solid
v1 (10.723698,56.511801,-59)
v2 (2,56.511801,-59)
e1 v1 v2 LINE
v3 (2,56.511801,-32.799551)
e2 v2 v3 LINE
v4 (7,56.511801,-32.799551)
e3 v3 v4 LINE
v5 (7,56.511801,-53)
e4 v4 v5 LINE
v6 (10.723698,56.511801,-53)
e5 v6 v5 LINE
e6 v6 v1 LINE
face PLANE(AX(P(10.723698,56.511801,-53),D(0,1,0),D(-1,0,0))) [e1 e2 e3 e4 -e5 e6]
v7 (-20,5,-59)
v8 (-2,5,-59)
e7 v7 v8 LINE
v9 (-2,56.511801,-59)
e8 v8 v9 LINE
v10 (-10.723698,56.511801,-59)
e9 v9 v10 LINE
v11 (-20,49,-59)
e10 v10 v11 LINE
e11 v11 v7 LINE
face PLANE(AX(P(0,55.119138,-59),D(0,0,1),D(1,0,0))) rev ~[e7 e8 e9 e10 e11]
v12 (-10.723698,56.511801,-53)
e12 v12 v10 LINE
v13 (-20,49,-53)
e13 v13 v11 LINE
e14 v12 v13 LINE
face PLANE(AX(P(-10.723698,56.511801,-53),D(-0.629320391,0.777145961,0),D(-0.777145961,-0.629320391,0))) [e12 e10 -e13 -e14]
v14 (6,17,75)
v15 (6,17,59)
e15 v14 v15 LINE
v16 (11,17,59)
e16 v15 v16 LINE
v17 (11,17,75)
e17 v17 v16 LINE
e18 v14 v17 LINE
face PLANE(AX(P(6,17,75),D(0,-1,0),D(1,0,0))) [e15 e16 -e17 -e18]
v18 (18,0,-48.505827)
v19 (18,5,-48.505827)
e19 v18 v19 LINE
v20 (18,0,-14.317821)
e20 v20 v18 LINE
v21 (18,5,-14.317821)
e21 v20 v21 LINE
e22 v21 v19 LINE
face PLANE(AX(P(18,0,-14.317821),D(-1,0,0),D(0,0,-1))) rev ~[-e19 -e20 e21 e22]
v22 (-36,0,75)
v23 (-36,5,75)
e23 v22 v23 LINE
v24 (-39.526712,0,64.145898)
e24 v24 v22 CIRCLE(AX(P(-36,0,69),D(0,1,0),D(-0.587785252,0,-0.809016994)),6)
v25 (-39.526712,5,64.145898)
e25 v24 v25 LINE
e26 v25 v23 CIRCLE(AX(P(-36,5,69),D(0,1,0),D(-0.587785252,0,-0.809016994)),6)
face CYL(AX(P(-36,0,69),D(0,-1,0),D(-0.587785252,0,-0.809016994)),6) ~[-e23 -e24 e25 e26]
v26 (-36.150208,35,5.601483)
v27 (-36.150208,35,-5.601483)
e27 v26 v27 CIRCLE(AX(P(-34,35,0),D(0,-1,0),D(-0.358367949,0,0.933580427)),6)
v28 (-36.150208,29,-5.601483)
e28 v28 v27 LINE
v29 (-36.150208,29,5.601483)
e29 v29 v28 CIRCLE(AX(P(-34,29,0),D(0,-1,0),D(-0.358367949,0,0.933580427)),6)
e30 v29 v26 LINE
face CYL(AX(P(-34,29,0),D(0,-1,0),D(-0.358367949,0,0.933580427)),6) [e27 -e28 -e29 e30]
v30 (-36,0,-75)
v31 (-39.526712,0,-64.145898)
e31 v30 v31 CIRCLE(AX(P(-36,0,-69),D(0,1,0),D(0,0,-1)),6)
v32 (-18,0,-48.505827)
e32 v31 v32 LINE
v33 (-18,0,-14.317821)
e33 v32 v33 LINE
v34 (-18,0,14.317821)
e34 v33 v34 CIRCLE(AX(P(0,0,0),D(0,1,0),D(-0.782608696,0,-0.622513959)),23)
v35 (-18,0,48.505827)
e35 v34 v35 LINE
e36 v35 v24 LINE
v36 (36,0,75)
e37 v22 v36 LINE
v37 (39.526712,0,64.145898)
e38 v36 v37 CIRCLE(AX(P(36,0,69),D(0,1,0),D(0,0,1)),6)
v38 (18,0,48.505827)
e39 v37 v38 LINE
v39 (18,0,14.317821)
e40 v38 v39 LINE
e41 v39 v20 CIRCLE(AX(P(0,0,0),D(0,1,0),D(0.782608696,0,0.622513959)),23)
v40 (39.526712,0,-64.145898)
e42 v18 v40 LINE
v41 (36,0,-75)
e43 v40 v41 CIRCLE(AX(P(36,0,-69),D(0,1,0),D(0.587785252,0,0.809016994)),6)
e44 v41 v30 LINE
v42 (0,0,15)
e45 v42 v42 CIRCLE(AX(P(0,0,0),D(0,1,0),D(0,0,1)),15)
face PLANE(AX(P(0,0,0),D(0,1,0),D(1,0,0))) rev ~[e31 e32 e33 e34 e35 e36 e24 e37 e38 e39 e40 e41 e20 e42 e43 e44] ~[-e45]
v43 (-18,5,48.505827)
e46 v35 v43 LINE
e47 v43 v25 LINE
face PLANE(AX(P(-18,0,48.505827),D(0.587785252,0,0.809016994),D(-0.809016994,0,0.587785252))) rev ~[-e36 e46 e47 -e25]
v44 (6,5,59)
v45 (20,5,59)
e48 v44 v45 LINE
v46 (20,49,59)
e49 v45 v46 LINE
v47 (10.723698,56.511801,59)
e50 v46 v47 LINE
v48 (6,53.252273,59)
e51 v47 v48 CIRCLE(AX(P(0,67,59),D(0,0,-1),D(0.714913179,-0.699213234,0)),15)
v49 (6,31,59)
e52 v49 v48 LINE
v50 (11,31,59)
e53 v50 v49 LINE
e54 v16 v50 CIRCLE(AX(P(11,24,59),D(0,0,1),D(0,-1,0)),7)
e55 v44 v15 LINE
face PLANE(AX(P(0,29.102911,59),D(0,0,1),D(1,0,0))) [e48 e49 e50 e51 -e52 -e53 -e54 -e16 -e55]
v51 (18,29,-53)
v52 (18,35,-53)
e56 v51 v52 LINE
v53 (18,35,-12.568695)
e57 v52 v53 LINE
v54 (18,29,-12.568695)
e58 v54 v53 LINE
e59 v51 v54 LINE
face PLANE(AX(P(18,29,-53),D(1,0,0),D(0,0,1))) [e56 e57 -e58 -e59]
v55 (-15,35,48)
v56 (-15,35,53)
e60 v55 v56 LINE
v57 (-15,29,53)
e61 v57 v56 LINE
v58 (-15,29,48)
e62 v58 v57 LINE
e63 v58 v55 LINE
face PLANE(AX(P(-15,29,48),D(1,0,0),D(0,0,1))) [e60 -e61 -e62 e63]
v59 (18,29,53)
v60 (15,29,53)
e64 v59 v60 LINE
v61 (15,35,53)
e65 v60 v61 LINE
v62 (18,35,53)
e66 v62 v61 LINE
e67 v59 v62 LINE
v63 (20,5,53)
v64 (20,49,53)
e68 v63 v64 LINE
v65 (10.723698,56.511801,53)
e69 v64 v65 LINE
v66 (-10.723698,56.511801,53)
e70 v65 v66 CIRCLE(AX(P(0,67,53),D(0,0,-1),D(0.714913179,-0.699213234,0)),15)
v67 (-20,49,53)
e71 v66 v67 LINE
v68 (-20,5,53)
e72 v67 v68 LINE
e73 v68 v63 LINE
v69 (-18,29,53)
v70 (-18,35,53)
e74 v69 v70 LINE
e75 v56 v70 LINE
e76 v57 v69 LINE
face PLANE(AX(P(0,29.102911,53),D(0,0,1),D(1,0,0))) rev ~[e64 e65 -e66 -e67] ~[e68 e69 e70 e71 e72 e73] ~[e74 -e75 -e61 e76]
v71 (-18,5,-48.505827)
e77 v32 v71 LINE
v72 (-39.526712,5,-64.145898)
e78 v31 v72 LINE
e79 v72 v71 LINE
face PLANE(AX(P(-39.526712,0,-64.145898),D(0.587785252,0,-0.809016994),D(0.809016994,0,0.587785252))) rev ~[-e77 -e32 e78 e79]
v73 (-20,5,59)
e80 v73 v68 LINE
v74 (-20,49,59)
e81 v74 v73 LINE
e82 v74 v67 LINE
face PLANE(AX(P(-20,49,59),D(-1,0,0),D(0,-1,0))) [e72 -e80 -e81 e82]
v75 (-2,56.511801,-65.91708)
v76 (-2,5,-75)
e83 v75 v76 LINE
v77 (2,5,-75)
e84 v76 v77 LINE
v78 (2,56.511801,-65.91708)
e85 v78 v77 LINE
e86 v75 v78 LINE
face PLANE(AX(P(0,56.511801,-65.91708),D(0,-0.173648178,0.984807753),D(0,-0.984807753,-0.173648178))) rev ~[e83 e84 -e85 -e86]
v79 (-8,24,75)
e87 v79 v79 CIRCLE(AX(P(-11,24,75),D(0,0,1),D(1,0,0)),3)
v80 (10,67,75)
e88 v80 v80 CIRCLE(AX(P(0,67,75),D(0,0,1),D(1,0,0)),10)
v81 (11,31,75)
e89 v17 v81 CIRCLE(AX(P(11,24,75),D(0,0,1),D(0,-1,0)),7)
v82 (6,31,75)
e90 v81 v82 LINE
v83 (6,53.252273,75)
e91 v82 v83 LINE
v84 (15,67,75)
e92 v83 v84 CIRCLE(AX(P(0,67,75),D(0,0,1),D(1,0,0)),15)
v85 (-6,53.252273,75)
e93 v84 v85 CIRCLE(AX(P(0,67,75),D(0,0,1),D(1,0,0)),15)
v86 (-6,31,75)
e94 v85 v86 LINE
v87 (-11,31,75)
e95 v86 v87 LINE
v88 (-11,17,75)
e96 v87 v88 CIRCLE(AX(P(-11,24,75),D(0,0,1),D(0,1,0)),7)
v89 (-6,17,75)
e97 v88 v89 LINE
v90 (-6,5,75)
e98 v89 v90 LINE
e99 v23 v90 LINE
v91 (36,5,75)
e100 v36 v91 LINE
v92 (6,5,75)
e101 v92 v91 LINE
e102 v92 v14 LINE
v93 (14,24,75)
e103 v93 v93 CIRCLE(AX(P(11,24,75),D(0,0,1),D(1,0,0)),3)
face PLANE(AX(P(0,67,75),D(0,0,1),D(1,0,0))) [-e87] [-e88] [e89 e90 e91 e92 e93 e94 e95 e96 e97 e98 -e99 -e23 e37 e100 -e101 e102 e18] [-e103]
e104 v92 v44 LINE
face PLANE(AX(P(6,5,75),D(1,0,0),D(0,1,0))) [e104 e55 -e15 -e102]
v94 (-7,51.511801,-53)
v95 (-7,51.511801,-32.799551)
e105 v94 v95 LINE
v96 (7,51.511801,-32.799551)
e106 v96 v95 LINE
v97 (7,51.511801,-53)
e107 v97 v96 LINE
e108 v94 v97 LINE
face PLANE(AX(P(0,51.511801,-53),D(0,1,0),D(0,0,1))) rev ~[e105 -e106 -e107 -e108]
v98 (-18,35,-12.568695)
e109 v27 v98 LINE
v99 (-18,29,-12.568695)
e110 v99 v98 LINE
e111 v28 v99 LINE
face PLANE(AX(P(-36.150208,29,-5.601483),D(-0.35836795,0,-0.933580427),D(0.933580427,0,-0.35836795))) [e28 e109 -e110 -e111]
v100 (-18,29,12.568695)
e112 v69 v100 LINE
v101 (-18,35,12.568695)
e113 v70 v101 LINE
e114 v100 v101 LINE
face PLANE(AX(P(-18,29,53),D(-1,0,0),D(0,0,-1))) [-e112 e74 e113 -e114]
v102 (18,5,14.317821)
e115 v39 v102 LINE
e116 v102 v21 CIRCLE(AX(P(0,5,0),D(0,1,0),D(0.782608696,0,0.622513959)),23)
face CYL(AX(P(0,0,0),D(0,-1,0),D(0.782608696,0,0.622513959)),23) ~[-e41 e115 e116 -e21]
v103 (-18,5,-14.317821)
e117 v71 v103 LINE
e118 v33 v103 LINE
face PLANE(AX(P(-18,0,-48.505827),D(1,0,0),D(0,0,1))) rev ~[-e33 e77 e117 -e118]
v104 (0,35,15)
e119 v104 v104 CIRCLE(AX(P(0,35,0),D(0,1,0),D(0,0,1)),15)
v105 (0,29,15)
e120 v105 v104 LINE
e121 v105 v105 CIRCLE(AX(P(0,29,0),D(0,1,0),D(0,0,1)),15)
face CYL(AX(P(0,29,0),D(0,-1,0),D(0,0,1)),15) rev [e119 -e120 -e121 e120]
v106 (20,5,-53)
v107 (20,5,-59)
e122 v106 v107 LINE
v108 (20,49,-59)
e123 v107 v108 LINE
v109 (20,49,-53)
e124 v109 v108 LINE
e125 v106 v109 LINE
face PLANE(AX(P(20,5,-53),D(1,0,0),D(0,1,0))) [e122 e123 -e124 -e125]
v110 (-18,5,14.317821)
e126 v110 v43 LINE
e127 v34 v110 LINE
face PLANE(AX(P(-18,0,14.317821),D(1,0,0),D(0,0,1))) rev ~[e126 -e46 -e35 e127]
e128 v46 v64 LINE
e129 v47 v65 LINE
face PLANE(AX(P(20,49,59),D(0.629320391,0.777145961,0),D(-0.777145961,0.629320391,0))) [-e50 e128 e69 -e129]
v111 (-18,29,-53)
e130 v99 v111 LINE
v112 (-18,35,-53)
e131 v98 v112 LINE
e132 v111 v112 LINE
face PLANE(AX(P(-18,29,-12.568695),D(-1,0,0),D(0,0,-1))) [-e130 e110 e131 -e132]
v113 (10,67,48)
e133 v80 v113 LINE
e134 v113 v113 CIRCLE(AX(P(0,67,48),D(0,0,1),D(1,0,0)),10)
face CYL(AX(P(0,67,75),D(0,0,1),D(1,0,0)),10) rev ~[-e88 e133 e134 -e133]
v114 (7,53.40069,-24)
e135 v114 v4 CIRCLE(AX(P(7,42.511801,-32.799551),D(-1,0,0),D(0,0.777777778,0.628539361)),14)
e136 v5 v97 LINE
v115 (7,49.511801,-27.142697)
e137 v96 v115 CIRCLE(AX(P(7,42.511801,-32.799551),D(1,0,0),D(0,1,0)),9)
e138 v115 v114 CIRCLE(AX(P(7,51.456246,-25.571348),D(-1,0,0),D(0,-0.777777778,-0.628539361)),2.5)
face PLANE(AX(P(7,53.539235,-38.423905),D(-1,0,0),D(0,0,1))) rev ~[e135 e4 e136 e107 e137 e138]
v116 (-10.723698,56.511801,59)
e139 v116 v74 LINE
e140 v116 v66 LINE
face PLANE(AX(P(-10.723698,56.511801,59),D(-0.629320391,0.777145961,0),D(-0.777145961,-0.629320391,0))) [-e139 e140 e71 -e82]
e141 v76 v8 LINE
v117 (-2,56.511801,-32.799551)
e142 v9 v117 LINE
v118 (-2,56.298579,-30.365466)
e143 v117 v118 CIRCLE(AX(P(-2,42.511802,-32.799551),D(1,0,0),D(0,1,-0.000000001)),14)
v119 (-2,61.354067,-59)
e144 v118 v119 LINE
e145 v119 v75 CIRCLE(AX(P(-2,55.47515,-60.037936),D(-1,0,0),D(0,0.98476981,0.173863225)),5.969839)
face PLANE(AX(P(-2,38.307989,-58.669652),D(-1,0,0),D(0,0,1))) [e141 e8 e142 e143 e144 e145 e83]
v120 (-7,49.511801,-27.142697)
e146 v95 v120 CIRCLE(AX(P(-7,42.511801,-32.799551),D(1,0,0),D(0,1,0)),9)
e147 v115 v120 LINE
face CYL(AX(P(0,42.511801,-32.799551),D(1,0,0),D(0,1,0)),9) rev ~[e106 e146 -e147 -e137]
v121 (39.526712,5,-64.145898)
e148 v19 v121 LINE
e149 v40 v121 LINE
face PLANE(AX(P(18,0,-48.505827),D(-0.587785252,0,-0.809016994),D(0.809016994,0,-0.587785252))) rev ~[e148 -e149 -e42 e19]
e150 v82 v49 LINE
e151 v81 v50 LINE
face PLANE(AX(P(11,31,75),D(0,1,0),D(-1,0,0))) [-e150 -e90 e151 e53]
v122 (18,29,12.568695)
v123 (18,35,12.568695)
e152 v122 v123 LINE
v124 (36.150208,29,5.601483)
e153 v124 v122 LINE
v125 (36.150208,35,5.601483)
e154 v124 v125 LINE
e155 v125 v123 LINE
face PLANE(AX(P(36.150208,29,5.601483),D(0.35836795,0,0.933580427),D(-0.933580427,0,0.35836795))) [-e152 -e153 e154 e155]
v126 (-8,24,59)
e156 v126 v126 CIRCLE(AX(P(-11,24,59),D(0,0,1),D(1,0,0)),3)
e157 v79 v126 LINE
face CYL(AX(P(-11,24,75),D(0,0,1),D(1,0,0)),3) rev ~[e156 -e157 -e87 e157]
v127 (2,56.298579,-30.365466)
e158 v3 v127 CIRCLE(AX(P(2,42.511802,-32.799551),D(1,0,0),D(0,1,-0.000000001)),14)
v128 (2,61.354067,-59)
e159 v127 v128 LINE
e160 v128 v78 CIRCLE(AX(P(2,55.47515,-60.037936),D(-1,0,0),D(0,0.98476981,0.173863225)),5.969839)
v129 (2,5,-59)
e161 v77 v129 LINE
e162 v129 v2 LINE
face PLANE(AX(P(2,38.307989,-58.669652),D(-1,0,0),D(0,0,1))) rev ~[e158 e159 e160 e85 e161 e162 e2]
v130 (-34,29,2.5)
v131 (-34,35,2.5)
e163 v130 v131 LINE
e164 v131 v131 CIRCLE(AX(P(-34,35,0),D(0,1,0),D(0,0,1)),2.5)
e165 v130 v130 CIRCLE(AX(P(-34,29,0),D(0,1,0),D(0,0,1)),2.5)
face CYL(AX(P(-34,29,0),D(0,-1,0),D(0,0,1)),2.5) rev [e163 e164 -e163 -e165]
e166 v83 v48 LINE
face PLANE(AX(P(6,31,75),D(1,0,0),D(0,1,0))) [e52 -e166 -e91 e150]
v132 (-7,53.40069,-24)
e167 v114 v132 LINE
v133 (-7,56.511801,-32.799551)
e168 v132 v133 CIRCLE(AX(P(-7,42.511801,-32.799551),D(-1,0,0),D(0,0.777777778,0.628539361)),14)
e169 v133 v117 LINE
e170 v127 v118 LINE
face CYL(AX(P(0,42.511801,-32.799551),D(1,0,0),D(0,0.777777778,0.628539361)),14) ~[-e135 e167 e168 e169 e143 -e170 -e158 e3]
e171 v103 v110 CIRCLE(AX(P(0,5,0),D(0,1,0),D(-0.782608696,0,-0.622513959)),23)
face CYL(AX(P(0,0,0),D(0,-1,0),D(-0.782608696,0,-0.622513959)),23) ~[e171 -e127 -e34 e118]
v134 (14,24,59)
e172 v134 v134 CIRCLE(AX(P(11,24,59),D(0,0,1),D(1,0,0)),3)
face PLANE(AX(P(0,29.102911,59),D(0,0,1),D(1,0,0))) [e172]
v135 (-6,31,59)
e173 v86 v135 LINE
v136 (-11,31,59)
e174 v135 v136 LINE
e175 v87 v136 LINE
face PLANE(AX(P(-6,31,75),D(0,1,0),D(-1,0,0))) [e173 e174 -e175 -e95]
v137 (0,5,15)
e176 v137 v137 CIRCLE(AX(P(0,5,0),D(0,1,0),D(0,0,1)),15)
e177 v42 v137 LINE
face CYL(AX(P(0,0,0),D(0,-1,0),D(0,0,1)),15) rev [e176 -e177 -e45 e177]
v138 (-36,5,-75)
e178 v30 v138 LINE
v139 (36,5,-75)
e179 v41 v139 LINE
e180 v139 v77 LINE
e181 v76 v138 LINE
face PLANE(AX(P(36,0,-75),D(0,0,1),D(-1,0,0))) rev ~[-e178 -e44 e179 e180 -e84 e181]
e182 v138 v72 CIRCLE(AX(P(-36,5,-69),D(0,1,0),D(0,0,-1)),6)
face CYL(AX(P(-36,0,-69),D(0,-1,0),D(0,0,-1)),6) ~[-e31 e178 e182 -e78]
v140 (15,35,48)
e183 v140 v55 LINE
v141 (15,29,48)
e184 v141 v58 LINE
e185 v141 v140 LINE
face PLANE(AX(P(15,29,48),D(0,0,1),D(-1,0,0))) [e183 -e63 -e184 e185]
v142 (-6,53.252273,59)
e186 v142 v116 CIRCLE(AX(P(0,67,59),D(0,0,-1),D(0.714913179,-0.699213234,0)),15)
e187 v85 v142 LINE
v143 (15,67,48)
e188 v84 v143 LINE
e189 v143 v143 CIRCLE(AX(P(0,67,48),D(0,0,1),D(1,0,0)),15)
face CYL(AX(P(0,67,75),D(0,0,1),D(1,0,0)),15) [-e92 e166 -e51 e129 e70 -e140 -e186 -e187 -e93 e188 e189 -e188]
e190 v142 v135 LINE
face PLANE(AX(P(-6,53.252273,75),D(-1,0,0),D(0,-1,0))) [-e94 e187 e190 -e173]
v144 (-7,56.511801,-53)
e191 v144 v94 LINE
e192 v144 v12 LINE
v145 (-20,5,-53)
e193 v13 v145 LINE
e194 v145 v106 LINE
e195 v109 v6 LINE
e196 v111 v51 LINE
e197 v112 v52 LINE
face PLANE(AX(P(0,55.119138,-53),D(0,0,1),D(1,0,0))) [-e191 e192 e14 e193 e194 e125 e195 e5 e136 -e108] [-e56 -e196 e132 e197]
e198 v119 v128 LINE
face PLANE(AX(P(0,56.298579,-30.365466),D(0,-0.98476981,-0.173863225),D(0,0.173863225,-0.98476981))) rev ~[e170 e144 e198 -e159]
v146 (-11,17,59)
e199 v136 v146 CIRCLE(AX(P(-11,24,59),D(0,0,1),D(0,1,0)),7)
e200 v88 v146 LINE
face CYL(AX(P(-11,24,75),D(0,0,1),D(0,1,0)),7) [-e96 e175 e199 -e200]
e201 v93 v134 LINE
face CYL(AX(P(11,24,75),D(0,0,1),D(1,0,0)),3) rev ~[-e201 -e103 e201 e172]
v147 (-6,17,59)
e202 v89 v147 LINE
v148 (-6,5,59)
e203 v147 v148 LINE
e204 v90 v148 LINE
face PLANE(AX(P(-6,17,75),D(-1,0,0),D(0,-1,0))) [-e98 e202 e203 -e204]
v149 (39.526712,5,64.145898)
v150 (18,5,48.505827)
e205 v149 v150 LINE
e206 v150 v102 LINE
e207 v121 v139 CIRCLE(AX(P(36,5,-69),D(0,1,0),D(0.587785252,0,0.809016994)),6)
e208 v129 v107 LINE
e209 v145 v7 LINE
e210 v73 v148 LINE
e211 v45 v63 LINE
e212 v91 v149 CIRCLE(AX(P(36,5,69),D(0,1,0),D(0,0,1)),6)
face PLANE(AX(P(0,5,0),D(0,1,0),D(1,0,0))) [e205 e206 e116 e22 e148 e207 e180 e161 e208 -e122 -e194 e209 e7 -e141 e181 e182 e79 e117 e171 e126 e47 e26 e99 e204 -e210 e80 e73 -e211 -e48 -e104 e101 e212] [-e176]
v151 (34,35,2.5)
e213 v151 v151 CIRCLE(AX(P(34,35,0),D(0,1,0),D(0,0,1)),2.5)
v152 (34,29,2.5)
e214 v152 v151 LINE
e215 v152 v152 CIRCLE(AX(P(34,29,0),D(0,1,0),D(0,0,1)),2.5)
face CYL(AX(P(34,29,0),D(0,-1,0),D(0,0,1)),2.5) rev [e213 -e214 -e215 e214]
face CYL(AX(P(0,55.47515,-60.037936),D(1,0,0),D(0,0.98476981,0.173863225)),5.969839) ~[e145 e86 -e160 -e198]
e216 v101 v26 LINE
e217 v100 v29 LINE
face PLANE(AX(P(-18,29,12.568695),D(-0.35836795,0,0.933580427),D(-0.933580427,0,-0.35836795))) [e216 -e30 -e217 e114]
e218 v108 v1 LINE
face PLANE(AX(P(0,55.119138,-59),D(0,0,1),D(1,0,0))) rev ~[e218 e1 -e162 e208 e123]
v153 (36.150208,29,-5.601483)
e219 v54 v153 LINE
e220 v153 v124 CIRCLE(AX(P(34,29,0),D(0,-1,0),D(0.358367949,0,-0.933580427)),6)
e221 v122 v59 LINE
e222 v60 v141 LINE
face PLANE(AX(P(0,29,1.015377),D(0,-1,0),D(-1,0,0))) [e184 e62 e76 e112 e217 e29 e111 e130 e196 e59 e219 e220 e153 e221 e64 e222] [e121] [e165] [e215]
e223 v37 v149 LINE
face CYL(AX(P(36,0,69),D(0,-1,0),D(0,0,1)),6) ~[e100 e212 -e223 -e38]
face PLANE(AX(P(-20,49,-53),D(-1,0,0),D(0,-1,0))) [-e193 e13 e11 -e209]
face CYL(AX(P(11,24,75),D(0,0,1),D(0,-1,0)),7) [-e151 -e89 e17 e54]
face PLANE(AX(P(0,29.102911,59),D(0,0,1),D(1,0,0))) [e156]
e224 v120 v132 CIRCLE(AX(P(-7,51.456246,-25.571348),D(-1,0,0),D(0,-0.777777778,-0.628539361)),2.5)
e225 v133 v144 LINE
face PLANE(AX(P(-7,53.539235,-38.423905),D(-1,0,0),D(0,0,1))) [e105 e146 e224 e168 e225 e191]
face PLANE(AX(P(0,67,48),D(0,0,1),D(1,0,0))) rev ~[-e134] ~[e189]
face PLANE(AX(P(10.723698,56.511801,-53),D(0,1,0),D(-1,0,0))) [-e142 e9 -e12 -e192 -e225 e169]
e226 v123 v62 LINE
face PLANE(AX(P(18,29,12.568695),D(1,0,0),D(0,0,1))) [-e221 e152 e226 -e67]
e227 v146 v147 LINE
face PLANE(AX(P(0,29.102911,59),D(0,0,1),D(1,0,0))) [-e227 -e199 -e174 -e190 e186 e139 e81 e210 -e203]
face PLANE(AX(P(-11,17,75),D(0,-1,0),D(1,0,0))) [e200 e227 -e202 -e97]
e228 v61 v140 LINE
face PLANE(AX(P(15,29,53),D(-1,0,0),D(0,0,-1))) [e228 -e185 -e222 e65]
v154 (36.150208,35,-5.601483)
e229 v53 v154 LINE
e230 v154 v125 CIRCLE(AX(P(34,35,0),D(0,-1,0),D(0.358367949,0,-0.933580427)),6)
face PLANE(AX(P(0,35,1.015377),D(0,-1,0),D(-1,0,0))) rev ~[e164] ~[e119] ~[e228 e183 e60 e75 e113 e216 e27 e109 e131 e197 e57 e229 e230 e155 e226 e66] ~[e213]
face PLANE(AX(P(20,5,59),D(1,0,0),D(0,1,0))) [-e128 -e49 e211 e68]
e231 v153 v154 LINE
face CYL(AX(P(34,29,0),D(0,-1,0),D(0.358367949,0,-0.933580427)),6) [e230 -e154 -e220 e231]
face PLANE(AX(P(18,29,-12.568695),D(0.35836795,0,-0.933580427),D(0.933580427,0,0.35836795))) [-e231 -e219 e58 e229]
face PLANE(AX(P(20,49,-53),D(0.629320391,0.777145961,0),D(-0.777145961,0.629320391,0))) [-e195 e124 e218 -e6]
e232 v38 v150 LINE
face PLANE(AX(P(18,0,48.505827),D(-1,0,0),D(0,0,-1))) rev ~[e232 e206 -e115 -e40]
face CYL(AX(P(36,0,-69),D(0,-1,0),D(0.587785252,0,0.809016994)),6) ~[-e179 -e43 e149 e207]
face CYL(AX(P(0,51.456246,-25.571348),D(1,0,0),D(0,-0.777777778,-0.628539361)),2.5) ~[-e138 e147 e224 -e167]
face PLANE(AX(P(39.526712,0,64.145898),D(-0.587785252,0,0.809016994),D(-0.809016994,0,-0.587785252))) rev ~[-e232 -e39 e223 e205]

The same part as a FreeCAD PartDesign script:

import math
import FreeCAD as App
import Part
import Sketcher
Q = App.Units.Quantity

doc = App.newDocument("Part")
params = doc.addObject("Spreadsheet::Sheet", "Params")
for row, (alias, value) in enumerate([
    ("sketch1_diameter", "30 mm"),
    ("sketch1_radius", "23 mm"),
    ("sketch1_radius2", "6 mm"),
    ("sketch1_width", "72 mm"),
    ("pad1_length", "5 mm"),
    ("sketch2_diameter", "30 mm"),
    ("sketch2_diameter2", "20 mm"),
    ("pad2_length", "27 mm"),
    ("sketch3_diameter", "6 mm"),
    ("sketch3_radius", "7 mm"),
    ("sketch3_radius2", "15 mm"),
    ("sketch3_width", "5 mm"),
    ("sketch3_width2", "12 mm"),
    ("pad3_length", "16 mm"),
    ("sketch4_radius", "15 mm"),
    ("sketch4_width", "40 mm"),
    ("sketch4_height", "44 mm"),
    ("pad4_length", "6 mm"),
    ("linearpattern_pitch", "112 mm"),
    ("sketch5_radius", "15 mm"),
    ("pad5_length", "6 mm"),
    ("sketch6_diameter", "5 mm"),
    ("sketch6_diameter2", "30 mm"),
    ("sketch6_radius", "6 mm"),
    ("sketch6_width", "3 mm"),
    ("sketch6_width2", "30 mm"),
    ("pad6_length", "6 mm"),
    ("sketch7_radius", "14 mm"),
    ("sketch7_radius2", "9 mm"),
    ("pad7_length", "14 mm"),
    ("sketch8_radius", "14 mm"),
    ("sketch8_height", "16 mm"),
    ("pad8_length", "4 mm"),
], start=1):
    params.set(f"A{row}", alias)
    params.set(f"B{row}", "=" + value)
    params.setAlias(f"B{row}", alias)

body = doc.addObject("PartDesign::Body", "Body")

# Sketch on XZ plane
sketch1 = body.newObject("Sketcher::SketchObject", "Sketch")
sketch1.AttachmentSupport = (doc.getObject("XZ_Plane"), [""])
sketch1.MapMode = "FlatFace"
sketch1.addGeometry([
    Part.LineSegment(App.Vector(-18, -49, 0), App.Vector(-18, -14, 0)),  # 0
    Part.ArcOfCircle(Part.Circle(App.Vector(0, 0, 0), App.Vector(0, 0, 1), 23), math.radians(142), math.radians(218)),  # 1
    Part.LineSegment(App.Vector(-18, 14, 0), App.Vector(-18, 49, 0)),  # 2
    Part.LineSegment(App.Vector(-18, 49, 0), App.Vector(-40, 64, 0)),  # 3
    Part.ArcOfCircle(Part.Circle(App.Vector(-36, 69, 0), App.Vector(0, 0, 1), 6), math.radians(90), math.radians(234)),  # 4
    Part.LineSegment(App.Vector(-36, 75, 0), App.Vector(36, 75, 0)),  # 5
    Part.ArcOfCircle(Part.Circle(App.Vector(36, 69, 0), App.Vector(0, 0, 1), 6), math.radians(-54), math.radians(90)),  # 6
    Part.LineSegment(App.Vector(40, 64, 0), App.Vector(18, 49, 0)),  # 7
    Part.LineSegment(App.Vector(18, 49, 0), App.Vector(18, 14, 0)),  # 8
    Part.ArcOfCircle(Part.Circle(App.Vector(0, 0, 0), App.Vector(0, 0, 1), 23), math.radians(-38), math.radians(38)),  # 9
    Part.LineSegment(App.Vector(18, -14, 0), App.Vector(18, -49, 0)),  # 10
    Part.LineSegment(App.Vector(18, -49, 0), App.Vector(40, -64, 0)),  # 11
    Part.ArcOfCircle(Part.Circle(App.Vector(36, -69, 0), App.Vector(0, 0, 1), 6), math.radians(-90), math.radians(54)),  # 12
    Part.LineSegment(App.Vector(36, -75, 0), App.Vector(-36, -75, 0)),  # 13
    Part.ArcOfCircle(Part.Circle(App.Vector(-36, -69, 0), App.Vector(0, 0, 1), 6), math.radians(126), math.radians(270)),  # 14
    Part.LineSegment(App.Vector(-40, -64, 0), App.Vector(-18, -49, 0)),  # 15
    Part.Circle(App.Vector(0, 0, 0), App.Vector(0, 0, 1), 15),  # 16
], False)
sketch1.addConstraint([
    Sketcher.Constraint("Coincident", 0, 2, 1, 2),
    Sketcher.Constraint("Coincident", 1, 1, 2, 1),
    Sketcher.Constraint("Coincident", 2, 2, 3, 1),
    Sketcher.Constraint("Tangent", 3, 2, 4, 2),
    Sketcher.Constraint("Tangent", 4, 1, 5, 1),
    Sketcher.Constraint("Tangent", 5, 2, 6, 2),
    Sketcher.Constraint("Tangent", 6, 1, 7, 1),
    Sketcher.Constraint("Coincident", 7, 2, 8, 1),
    Sketcher.Constraint("Coincident", 8, 2, 9, 2),
    Sketcher.Constraint("Coincident", 9, 1, 10, 1),
    Sketcher.Constraint("Coincident", 10, 2, 11, 1),
    Sketcher.Constraint("Tangent", 11, 2, 12, 2),
    Sketcher.Constraint("Tangent", 12, 1, 13, 1),
    Sketcher.Constraint("Tangent", 13, 2, 14, 2),
    Sketcher.Constraint("Tangent", 14, 1, 15, 1),
    Sketcher.Constraint("Coincident", 15, 2, 0, 1),
    Sketcher.Constraint("Vertical", 0),
    Sketcher.Constraint("Vertical", 2),
    Sketcher.Constraint("Horizontal", 5),
    Sketcher.Constraint("Vertical", 8),
    Sketcher.Constraint("Vertical", 10),
    Sketcher.Constraint("Horizontal", 13),
    Sketcher.Constraint("Coincident", 1, 3, -1, 1),
    Sketcher.Constraint("Coincident", 9, 3, -1, 1),
    Sketcher.Constraint("Coincident", 16, 3, -1, 1),
    Sketcher.Constraint("Equal", 4, 6),
    Sketcher.Constraint("Equal", 1, 9),
    Sketcher.Constraint("Equal", 6, 12),
    Sketcher.Constraint("Equal", 12, 14),
    Sketcher.Constraint("Symmetric", 4, 3, 12, 3, -1, 1),
    Sketcher.Constraint("Symmetric", 2, 2, 10, 2, -1, 1),
    Sketcher.Constraint("Symmetric", 6, 1, 14, 1, -1, 1),
    Sketcher.Constraint("Symmetric", 3, 2, 6, 1, -2),
    Sketcher.Constraint("Horizontal", 2, 2, 7, 2),
    Sketcher.Constraint("Horizontal", 0, 2, 9, 1),
    Sketcher.Constraint("Diameter", 16, 30.0),
    Sketcher.Constraint("Radius", 1, 23.0),
    Sketcher.Constraint("Radius", 4, 6.0),
    Sketcher.Constraint("DistanceX", 5, 1, 5, 2, 72.0),
    Sketcher.Constraint("Angle", 3, Q("144 deg")),
    Sketcher.Constraint("DistanceY", -1, 1, 4, 3, 69.0),
    Sketcher.Constraint("DistanceX", 0, 2, -1, 1, 18.0),
])
sketch1.setExpression("Constraints[35]", "Params.sketch1_diameter")
sketch1.setExpression("Constraints[36]", "Params.sketch1_radius")
sketch1.setExpression("Constraints[37]", "Params.sketch1_radius2")
sketch1.setExpression("Constraints[38]", "Params.sketch1_width")
pad1 = body.newObject("PartDesign::Pad", "Pad")
pad1.Profile = sketch1
pad1.setExpression("Length", "Params.pad1_length")
pad1.Reversed = True
body2 = doc.addObject("PartDesign::Body", "Body001")

# Sketch on XY plane
sketch2 = body2.newObject("Sketcher::SketchObject", "Sketch001")
sketch2.AttachmentSupport = (doc.getObject("XY_Plane001"), [""])
sketch2.MapMode = "FlatFace"
sketch2.AttachmentOffset = App.Placement(App.Vector(0, 0, 75), App.Rotation())
sketch2.addGeometry([
    Part.Circle(App.Vector(0, 67, 0), App.Vector(0, 0, 1), 15),
    Part.Circle(App.Vector(0, 67, 0), App.Vector(0, 0, 1), 10),
], False)
sketch2.addConstraint([
    Sketcher.Constraint("Coincident", 1, 3, 0, 3),
    Sketcher.Constraint("PointOnObject", 0, 3, -2),
    Sketcher.Constraint("Diameter", 0, 30.0),
    Sketcher.Constraint("Diameter", 1, 20.0),
    Sketcher.Constraint("DistanceY", -1, 1, 0, 3, 67.0),
])
sketch2.setExpression("Constraints[2]", "Params.sketch2_diameter")
sketch2.setExpression("Constraints[3]", "Params.sketch2_diameter2")
pad2 = body2.newObject("PartDesign::Pad", "Pad001")
pad2.Profile = sketch2
pad2.setExpression("Length", "Params.pad2_length")
pad2.Reversed = True
body.AllowCompound = True
doc.recompute()

boolean = body.newObject("PartDesign::Boolean", "Boolean")
boolean.Type = "Fuse"
boolean.addObjects([body2])

# Sketch on XY plane
sketch3 = body.newObject("Sketcher::SketchObject", "Sketch002")
sketch3.AttachmentSupport = (doc.getObject("XY_Plane"), [""])
sketch3.MapMode = "FlatFace"
sketch3.AttachmentOffset = App.Placement(App.Vector(0, 0, 75), App.Rotation())
sketch3.addGeometry([
    Part.LineSegment(App.Vector(-6, 53.3, 0), App.Vector(-6, 31, 0)),  # 0
    Part.LineSegment(App.Vector(-6, 31, 0), App.Vector(-11, 31, 0)),  # 1
    Part.ArcOfCircle(Part.Circle(App.Vector(-11, 24, 0), App.Vector(0, 0, 1), 7), math.radians(90), math.radians(270)),  # 2
    Part.LineSegment(App.Vector(-11, 17, 0), App.Vector(-6, 17, 0)),  # 3
    Part.LineSegment(App.Vector(-6, 17, 0), App.Vector(-6, 5, 0)),  # 4
    Part.LineSegment(App.Vector(-6, 5, 0), App.Vector(6, 5, 0)),  # 5
    Part.LineSegment(App.Vector(6, 5, 0), App.Vector(6, 17, 0)),  # 6
    Part.LineSegment(App.Vector(6, 17, 0), App.Vector(11, 17, 0)),  # 7
    Part.ArcOfCircle(Part.Circle(App.Vector(11, 24, 0), App.Vector(0, 0, 1), 7), math.radians(-90), math.radians(90)),  # 8
    Part.LineSegment(App.Vector(11, 31, 0), App.Vector(6, 31, 0)),  # 9
    Part.LineSegment(App.Vector(6, 31, 0), App.Vector(6, 53.3, 0)),  # 10
    Part.ArcOfCircle(Part.Circle(App.Vector(0, 67, 0), App.Vector(0, 0, 1), 15), math.radians(-114), math.radians(-66)),  # 11
    Part.Circle(App.Vector(-11, 24, 0), App.Vector(0, 0, 1), 3),  # 12
    Part.Circle(App.Vector(11, 24, 0), App.Vector(0, 0, 1), 3),  # 13
], False)
sketch3.addConstraint([
    Sketcher.Constraint("Coincident", 0, 2, 1, 1),
    Sketcher.Constraint("Tangent", 1, 2, 2, 1),
    Sketcher.Constraint("Tangent", 2, 2, 3, 1),
    Sketcher.Constraint("Coincident", 3, 2, 4, 1),
    Sketcher.Constraint("Coincident", 4, 2, 5, 1),
    Sketcher.Constraint("Coincident", 5, 2, 6, 1),
    Sketcher.Constraint("Coincident", 6, 2, 7, 1),
    Sketcher.Constraint("Tangent", 7, 2, 8, 1),
    Sketcher.Constraint("Tangent", 8, 2, 9, 1),
    Sketcher.Constraint("Coincident", 9, 2, 10, 1),
    Sketcher.Constraint("Coincident", 10, 2, 11, 2),
    Sketcher.Constraint("Coincident", 11, 1, 0, 1),
    Sketcher.Constraint("Vertical", 0),
    Sketcher.Constraint("Horizontal", 1),
    Sketcher.Constraint("Horizontal", 3),
    Sketcher.Constraint("Vertical", 4),
    Sketcher.Constraint("Horizontal", 5),
    Sketcher.Constraint("Vertical", 6),
    Sketcher.Constraint("Horizontal", 7),
    Sketcher.Constraint("Horizontal", 9),
    Sketcher.Constraint("Vertical", 10),
    Sketcher.Constraint("Coincident", 12, 3, 2, 3),
    Sketcher.Constraint("Coincident", 13, 3, 8, 3),
    Sketcher.Constraint("Equal", 2, 8),
    Sketcher.Constraint("Equal", 12, 13),
    Sketcher.Constraint("Symmetric", 2, 3, 8, 3, -2),
    Sketcher.Constraint("Symmetric", 10, 2, 11, 1, -2),
    Sketcher.Constraint("Vertical", 0, 2, 3, 2),
    Sketcher.Constraint("Vertical", 6, 2, 9, 2),
    Sketcher.Constraint("Equal", 5, 4),
    Sketcher.Constraint("Diameter", 12, 6.0),
    Sketcher.Constraint("Radius", 2, 7.0),
    Sketcher.Constraint("Radius", 11, 15.0),
    Sketcher.Constraint("DistanceX", 1, 2, 1, 1, 5.0),
    Sketcher.Constraint("DistanceX", 5, 1, 5, 2, 12.0),
    Sketcher.Constraint("DistanceY", -1, 1, 2, 3, 24.0),
    Sketcher.Constraint("DistanceY", -1, 1, 11, 3, 67.0),
])
sketch3.setExpression("Constraints[30]", "Params.sketch3_diameter")
sketch3.setExpression("Constraints[31]", "Params.sketch3_radius")
sketch3.setExpression("Constraints[32]", "Params.sketch3_radius2")
sketch3.setExpression("Constraints[33]", "Params.sketch3_width")
sketch3.setExpression("Constraints[34]", "Params.sketch3_width2")
pad3 = body.newObject("PartDesign::Pad", "Pad002")
pad3.Profile = sketch3
pad3.setExpression("Length", "Params.pad3_length")
pad3.Reversed = True

# Sketch on XY plane
sketch4 = body.newObject("Sketcher::SketchObject", "Sketch003")
sketch4.AttachmentSupport = (doc.getObject("XY_Plane"), [""])
sketch4.MapMode = "FlatFace"
sketch4.AttachmentOffset = App.Placement(App.Vector(0, 0, 59), App.Rotation())
sketch4.addGeometry([
    Part.LineSegment(App.Vector(20, 49, 0), App.Vector(20, 5, 0)),  # 0
    Part.LineSegment(App.Vector(20, 5, 0), App.Vector(-20, 5, 0)),  # 1
    Part.LineSegment(App.Vector(-20, 5, 0), App.Vector(-20, 49, 0)),  # 2
    Part.LineSegment(App.Vector(-20, 49, 0), App.Vector(-11, 57, 0)),  # 3
    Part.ArcOfCircle(Part.Circle(App.Vector(0, 67, 0), App.Vector(0, 0, 1), 15), math.radians(-136), math.radians(-44)),  # 4
    Part.LineSegment(App.Vector(11, 57, 0), App.Vector(20, 49, 0)),  # 5
], False)
sketch4.addConstraint([
    Sketcher.Constraint("Coincident", 0, 2, 1, 1),
    Sketcher.Constraint("Coincident", 1, 2, 2, 1),
    Sketcher.Constraint("Coincident", 2, 2, 3, 1),
    Sketcher.Constraint("Coincident", 3, 2, 4, 1),
    Sketcher.Constraint("Coincident", 4, 2, 5, 1),
    Sketcher.Constraint("Coincident", 5, 2, 0, 1),
    Sketcher.Constraint("Vertical", 0),
    Sketcher.Constraint("Horizontal", 1),
    Sketcher.Constraint("Vertical", 2),
    Sketcher.Constraint("Symmetric", 3, 2, 4, 2, -2),
    Sketcher.Constraint("Symmetric", 2, 2, 5, 2, -2),
    Sketcher.Constraint("Radius", 4, 15.0),
    Sketcher.Constraint("DistanceX", 1, 2, 1, 1, 40.0),
    Sketcher.Constraint("DistanceY", 0, 2, 0, 1, 44.0),
    Sketcher.Constraint("Angle", 3, Q("39 deg")),
    Sketcher.Constraint("DistanceY", -1, 1, 4, 3, 67.0),
    Sketcher.Constraint("DistanceY", -1, 1, 0, 2, 5.0),
])
sketch4.setExpression("Constraints[11]", "Params.sketch4_radius")
sketch4.setExpression("Constraints[12]", "Params.sketch4_width")
sketch4.setExpression("Constraints[13]", "Params.sketch4_height")
pad4 = body.newObject("PartDesign::Pad", "Pad003")
pad4.Profile = sketch4
pad4.setExpression("Length", "Params.pad4_length")
pad4.Reversed = True
doc.recompute()

linearpattern = body.newObject("PartDesign::LinearPattern", "LinearPattern")
linearpattern.Originals = [pad4]
linearpattern.Direction = (doc.getObject("Z_Axis"), [""])
linearpattern.Mode = "offset"
linearpattern.setExpression("Offset", "Params.linearpattern_pitch")
linearpattern.Occurrences = 2
linearpattern.Reversed = True
body.Tip = linearpattern

# Sketch on XY plane
sketch5 = body.newObject("Sketcher::SketchObject", "Sketch004")
sketch5.AttachmentSupport = (doc.getObject("XY_Plane"), [""])
sketch5.MapMode = "FlatFace"
sketch5.AttachmentOffset = App.Placement(App.Vector(0, 0, -53), App.Rotation())
sketch5.addGeometry([
    Part.LineSegment(App.Vector(-11, 57, 0), App.Vector(11, 57, 0)),
    Part.ArcOfCircle(Part.Circle(App.Vector(0, 67, 0), App.Vector(0, 0, 1), 15), math.radians(-136), math.radians(-44)),
], False)
sketch5.addConstraint([
    Sketcher.Constraint("Coincident", 0, 1, 1, 1),
    Sketcher.Constraint("Coincident", 1, 2, 0, 2),
    Sketcher.Constraint("Horizontal", 0),
    Sketcher.Constraint("PointOnObject", 1, 3, -2),
    Sketcher.Constraint("Radius", 1, 15.0),
    Sketcher.Constraint("DistanceY", -1, 1, 1, 3, 67.0),
    Sketcher.Constraint("DistanceY", -1, 1, 0, 1, 56.511801),
])
sketch5.setExpression("Constraints[4]", "Params.sketch5_radius")
pad5 = body.newObject("PartDesign::Pad", "Pad004")
pad5.Profile = sketch5
pad5.setExpression("Length", "Params.pad5_length")
pad5.Reversed = True

# Sketch on XZ plane
sketch6 = body.newObject("Sketcher::SketchObject", "Sketch005")
sketch6.AttachmentSupport = (doc.getObject("XZ_Plane"), [""])
sketch6.MapMode = "FlatFace"
sketch6.AttachmentOffset = App.Placement(App.Vector(0, 0, -29), App.Rotation())
sketch6.addGeometry([
    Part.LineSegment(App.Vector(-18, -12.6, 0), App.Vector(-36.2, -5.6, 0)),  # 0
    Part.ArcOfCircle(Part.Circle(App.Vector(-34, 0, 0), App.Vector(0, 0, 1), 6), math.radians(111), math.radians(249)),  # 1
    Part.LineSegment(App.Vector(-36.2, 5.6, 0), App.Vector(-18, 12.6, 0)),  # 2
    Part.LineSegment(App.Vector(-18, 12.6, 0), App.Vector(-18, 53, 0)),  # 3
    Part.LineSegment(App.Vector(-18, 53, 0), App.Vector(-15, 53, 0)),  # 4
    Part.LineSegment(App.Vector(-15, 53, 0), App.Vector(-15, 48, 0)),  # 5
    Part.LineSegment(App.Vector(-15, 48, 0), App.Vector(15, 48, 0)),  # 6
    Part.LineSegment(App.Vector(15, 48, 0), App.Vector(15, 53, 0)),  # 7
    Part.LineSegment(App.Vector(15, 53, 0), App.Vector(18, 53, 0)),  # 8
    Part.LineSegment(App.Vector(18, 53, 0), App.Vector(18, 12.6, 0)),  # 9
    Part.LineSegment(App.Vector(18, 12.6, 0), App.Vector(36.2, 5.6, 0)),  # 10
    Part.ArcOfCircle(Part.Circle(App.Vector(34, 0, 0), App.Vector(0, 0, 1), 6), math.radians(-69), math.radians(69)),  # 11
    Part.LineSegment(App.Vector(36.2, -5.6, 0), App.Vector(18, -12.6, 0)),  # 12
    Part.LineSegment(App.Vector(18, -12.6, 0), App.Vector(18, -53, 0)),  # 13
    Part.LineSegment(App.Vector(18, -53, 0), App.Vector(-18, -53, 0)),  # 14
    Part.LineSegment(App.Vector(-18, -53, 0), App.Vector(-18, -12.6, 0)),  # 15
    Part.Circle(App.Vector(34, 0, 0), App.Vector(0, 0, 1), 2.5),  # 16
    Part.Circle(App.Vector(0, 0, 0), App.Vector(0, 0, 1), 15),  # 17
    Part.Circle(App.Vector(-34, 0, 0), App.Vector(0, 0, 1), 2.5),  # 18
], False)
sketch6.addConstraint([
    Sketcher.Constraint("Tangent", 0, 2, 1, 2),
    Sketcher.Constraint("Tangent", 1, 1, 2, 1),
    Sketcher.Constraint("Coincident", 2, 2, 3, 1),
    Sketcher.Constraint("Coincident", 3, 2, 4, 1),
    Sketcher.Constraint("Coincident", 4, 2, 5, 1),
    Sketcher.Constraint("Coincident", 5, 2, 6, 1),
    Sketcher.Constraint("Coincident", 6, 2, 7, 1),
    Sketcher.Constraint("Coincident", 7, 2, 8, 1),
    Sketcher.Constraint("Coincident", 8, 2, 9, 1),
    Sketcher.Constraint("Coincident", 9, 2, 10, 1),
    Sketcher.Constraint("Tangent", 10, 2, 11, 2),
    Sketcher.Constraint("Tangent", 11, 1, 12, 1),
    Sketcher.Constraint("Coincident", 12, 2, 13, 1),
    Sketcher.Constraint("Coincident", 13, 2, 14, 1),
    Sketcher.Constraint("Coincident", 14, 2, 15, 1),
    Sketcher.Constraint("Coincident", 15, 2, 0, 1),
    Sketcher.Constraint("Vertical", 3),
    Sketcher.Constraint("Horizontal", 4),
    Sketcher.Constraint("Vertical", 5),
    Sketcher.Constraint("Horizontal", 6),
    Sketcher.Constraint("Vertical", 7),
    Sketcher.Constraint("Horizontal", 8),
    Sketcher.Constraint("Vertical", 9),
    Sketcher.Constraint("Vertical", 13),
    Sketcher.Constraint("Horizontal", 14),
    Sketcher.Constraint("Vertical", 15),
    Sketcher.Constraint("Coincident", 17, 3, -1, 1),
    Sketcher.Constraint("Coincident", 16, 3, 11, 3),
    Sketcher.Constraint("Coincident", 18, 3, 1, 3),
    Sketcher.Constraint("Equal", 1, 11),
    Sketcher.Constraint("Equal", 16, 18),
    Sketcher.Constraint("Symmetric", 1, 3, 11, 3, -1, 1),
    Sketcher.Constraint("Symmetric", 2, 2, 12, 2, -1, 1),
    Sketcher.Constraint("Symmetric", 8, 2, 14, 2, -1, 1),
    Sketcher.Constraint("Symmetric", 4, 2, 7, 2, -2),
    Sketcher.Constraint("Symmetric", 2, 2, 9, 2, -2),
    Sketcher.Constraint("Symmetric", 0, 2, 11, 1, -2),
    Sketcher.Constraint("Diameter", 16, 5.0),
    Sketcher.Constraint("Diameter", 17, 30.0),
    Sketcher.Constraint("Radius", 1, 6.0),
    Sketcher.Constraint("DistanceX", 4, 1, 4, 2, 3.0),
    Sketcher.Constraint("DistanceX", 6, 1, 6, 2, 30.0),
    Sketcher.Constraint("DistanceY", 5, 2, 5, 1, 5.0),
    Sketcher.Constraint("Angle", 0, Q("159 deg")),
    Sketcher.Constraint("DistanceX", 1, 3, -1, 1, 34.0),
    Sketcher.Constraint("DistanceY", -1, 1, 3, 2, 53.0),
])
sketch6.setExpression("Constraints[37]", "Params.sketch6_diameter")
sketch6.setExpression("Constraints[38]", "Params.sketch6_diameter2")
sketch6.setExpression("Constraints[39]", "Params.sketch6_radius")
sketch6.setExpression("Constraints[40]", "Params.sketch6_width")
sketch6.setExpression("Constraints[41]", "Params.sketch6_width2")
pad6 = body.newObject("PartDesign::Pad", "Pad005")
pad6.Profile = sketch6
pad6.setExpression("Length", "Params.pad6_length")
pad6.Reversed = True

# Sketch on YZ plane
sketch7 = body.newObject("Sketcher::SketchObject", "Sketch006")
sketch7.AttachmentSupport = (doc.getObject("YZ_Plane"), [""])
sketch7.MapMode = "FlatFace"
sketch7.addGeometry([
    Part.LineSegment(App.Vector(51.5, -32.8, 0), App.Vector(51.5, -53, 0)),  # 0
    Part.LineSegment(App.Vector(51.5, -53, 0), App.Vector(56.5, -53, 0)),  # 1
    Part.LineSegment(App.Vector(56.5, -53, 0), App.Vector(56.5, -32.8, 0)),  # 2
    Part.ArcOfCircle(Part.Circle(App.Vector(42.5, -32.8, 0), App.Vector(0, 0, 1), 14), math.radians(0), math.radians(39)),  # 3
    Part.ArcOfCircle(Part.Circle(App.Vector(51.5, -25.6, 0), App.Vector(0, 0, 1), 2.5), math.radians(39), math.radians(219)),  # 4
    Part.ArcOfCircle(Part.Circle(App.Vector(42.5, -32.8, 0), App.Vector(0, 0, 1), 9), math.radians(0), math.radians(39)),  # 5
], False)
sketch7.addConstraint([
    Sketcher.Constraint("Coincident", 0, 2, 1, 1),
    Sketcher.Constraint("Coincident", 1, 2, 2, 1),
    Sketcher.Constraint("Tangent", 2, 2, 3, 1),
    Sketcher.Constraint("Tangent", 3, 2, 4, 1),
    Sketcher.Constraint("Tangent", 4, 2, 5, 2),
    Sketcher.Constraint("Tangent", 5, 1, 0, 1),
    Sketcher.Constraint("Vertical", 0),
    Sketcher.Constraint("Horizontal", 1),
    Sketcher.Constraint("Vertical", 2),
    Sketcher.Constraint("Coincident", 5, 3, 3, 3),
    Sketcher.Constraint("Radius", 3, 14.0),
    Sketcher.Constraint("Radius", 5, 9.0),
    Sketcher.Constraint("DistanceY", 0, 2, -1, 1, 53.0),
    Sketcher.Constraint("DistanceY", 3, 2, -1, 1, 24.0),
    Sketcher.Constraint("DistanceX", 4, 2, 2, 2, 7.0),
    Sketcher.Constraint("DistanceX", -1, 1, 3, 3, 42.511801),
])
sketch7.setExpression("Constraints[10]", "Params.sketch7_radius")
sketch7.setExpression("Constraints[11]", "Params.sketch7_radius2")
pad7 = body.newObject("PartDesign::Pad", "Pad006")
pad7.Profile = sketch7
pad7.setExpression("Length", "Params.pad7_length")
pad7.Midplane = True

# Sketch on YZ plane
sketch8 = body.newObject("Sketcher::SketchObject", "Sketch007")
sketch8.AttachmentSupport = (doc.getObject("YZ_Plane"), [""])
sketch8.MapMode = "FlatFace"
sketch8.addGeometry([
    Part.LineSegment(App.Vector(5, -59, 0), App.Vector(5, -75, 0)),  # 0
    Part.LineSegment(App.Vector(5, -75, 0), App.Vector(56.5, -65.9, 0)),  # 1
    Part.ArcOfCircle(Part.Circle(App.Vector(55.5, -60, 0), App.Vector(0, 0, 1), 6), math.radians(-80), math.radians(10)),  # 2
    Part.LineSegment(App.Vector(61.4, -59, 0), App.Vector(56.3, -30.4, 0)),  # 3
    Part.ArcOfCircle(Part.Circle(App.Vector(42.5, -32.8, 0), App.Vector(0, 0, 1), 14), math.radians(0), math.radians(10.01)),  # 4
    Part.LineSegment(App.Vector(56.5, -32.8, 0), App.Vector(56.5, -59, 0)),  # 5
    Part.LineSegment(App.Vector(56.5, -59, 0), App.Vector(5, -59, 0)),  # 6
], False)
sketch8.addConstraint([
    Sketcher.Constraint("Coincident", 0, 2, 1, 1),
    Sketcher.Constraint("Tangent", 1, 2, 2, 1),
    Sketcher.Constraint("Tangent", 2, 2, 3, 1),
    Sketcher.Constraint("Tangent", 3, 2, 4, 2),
    Sketcher.Constraint("Tangent", 4, 1, 5, 1),
    Sketcher.Constraint("Coincident", 5, 2, 6, 1),
    Sketcher.Constraint("Coincident", 6, 2, 0, 1),
    Sketcher.Constraint("Vertical", 0),
    Sketcher.Constraint("Vertical", 5),
    Sketcher.Constraint("Horizontal", 6),
    Sketcher.Constraint("Horizontal", 2, 2, 5, 2),
    Sketcher.Constraint("Vertical", 1, 2, 4, 1),
    Sketcher.Constraint("Radius", 4, 14.0),
    Sketcher.Constraint("DistanceY", 0, 2, 0, 1, 16.0),
    Sketcher.Constraint("Angle", 1, Q("10 deg")),
    Sketcher.Constraint("DistanceX", -1, 1, 0, 2, 5.0),
    Sketcher.Constraint("DistanceY", 0, 2, -1, 1, 75.0),
    Sketcher.Constraint("Radius", 2, 5.969839),
    Sketcher.Constraint("DistanceX", 6, 2, 6, 1, 51.511801),
])
sketch8.setExpression("Constraints[12]", "Params.sketch8_radius")
sketch8.setExpression("Constraints[13]", "Params.sketch8_height")
pad8 = body.newObject("PartDesign::Pad", "Pad007")
pad8.Profile = sketch8
pad8.setExpression("Length", "Params.pad8_length")
pad8.Midplane = True

doc.recompute()
